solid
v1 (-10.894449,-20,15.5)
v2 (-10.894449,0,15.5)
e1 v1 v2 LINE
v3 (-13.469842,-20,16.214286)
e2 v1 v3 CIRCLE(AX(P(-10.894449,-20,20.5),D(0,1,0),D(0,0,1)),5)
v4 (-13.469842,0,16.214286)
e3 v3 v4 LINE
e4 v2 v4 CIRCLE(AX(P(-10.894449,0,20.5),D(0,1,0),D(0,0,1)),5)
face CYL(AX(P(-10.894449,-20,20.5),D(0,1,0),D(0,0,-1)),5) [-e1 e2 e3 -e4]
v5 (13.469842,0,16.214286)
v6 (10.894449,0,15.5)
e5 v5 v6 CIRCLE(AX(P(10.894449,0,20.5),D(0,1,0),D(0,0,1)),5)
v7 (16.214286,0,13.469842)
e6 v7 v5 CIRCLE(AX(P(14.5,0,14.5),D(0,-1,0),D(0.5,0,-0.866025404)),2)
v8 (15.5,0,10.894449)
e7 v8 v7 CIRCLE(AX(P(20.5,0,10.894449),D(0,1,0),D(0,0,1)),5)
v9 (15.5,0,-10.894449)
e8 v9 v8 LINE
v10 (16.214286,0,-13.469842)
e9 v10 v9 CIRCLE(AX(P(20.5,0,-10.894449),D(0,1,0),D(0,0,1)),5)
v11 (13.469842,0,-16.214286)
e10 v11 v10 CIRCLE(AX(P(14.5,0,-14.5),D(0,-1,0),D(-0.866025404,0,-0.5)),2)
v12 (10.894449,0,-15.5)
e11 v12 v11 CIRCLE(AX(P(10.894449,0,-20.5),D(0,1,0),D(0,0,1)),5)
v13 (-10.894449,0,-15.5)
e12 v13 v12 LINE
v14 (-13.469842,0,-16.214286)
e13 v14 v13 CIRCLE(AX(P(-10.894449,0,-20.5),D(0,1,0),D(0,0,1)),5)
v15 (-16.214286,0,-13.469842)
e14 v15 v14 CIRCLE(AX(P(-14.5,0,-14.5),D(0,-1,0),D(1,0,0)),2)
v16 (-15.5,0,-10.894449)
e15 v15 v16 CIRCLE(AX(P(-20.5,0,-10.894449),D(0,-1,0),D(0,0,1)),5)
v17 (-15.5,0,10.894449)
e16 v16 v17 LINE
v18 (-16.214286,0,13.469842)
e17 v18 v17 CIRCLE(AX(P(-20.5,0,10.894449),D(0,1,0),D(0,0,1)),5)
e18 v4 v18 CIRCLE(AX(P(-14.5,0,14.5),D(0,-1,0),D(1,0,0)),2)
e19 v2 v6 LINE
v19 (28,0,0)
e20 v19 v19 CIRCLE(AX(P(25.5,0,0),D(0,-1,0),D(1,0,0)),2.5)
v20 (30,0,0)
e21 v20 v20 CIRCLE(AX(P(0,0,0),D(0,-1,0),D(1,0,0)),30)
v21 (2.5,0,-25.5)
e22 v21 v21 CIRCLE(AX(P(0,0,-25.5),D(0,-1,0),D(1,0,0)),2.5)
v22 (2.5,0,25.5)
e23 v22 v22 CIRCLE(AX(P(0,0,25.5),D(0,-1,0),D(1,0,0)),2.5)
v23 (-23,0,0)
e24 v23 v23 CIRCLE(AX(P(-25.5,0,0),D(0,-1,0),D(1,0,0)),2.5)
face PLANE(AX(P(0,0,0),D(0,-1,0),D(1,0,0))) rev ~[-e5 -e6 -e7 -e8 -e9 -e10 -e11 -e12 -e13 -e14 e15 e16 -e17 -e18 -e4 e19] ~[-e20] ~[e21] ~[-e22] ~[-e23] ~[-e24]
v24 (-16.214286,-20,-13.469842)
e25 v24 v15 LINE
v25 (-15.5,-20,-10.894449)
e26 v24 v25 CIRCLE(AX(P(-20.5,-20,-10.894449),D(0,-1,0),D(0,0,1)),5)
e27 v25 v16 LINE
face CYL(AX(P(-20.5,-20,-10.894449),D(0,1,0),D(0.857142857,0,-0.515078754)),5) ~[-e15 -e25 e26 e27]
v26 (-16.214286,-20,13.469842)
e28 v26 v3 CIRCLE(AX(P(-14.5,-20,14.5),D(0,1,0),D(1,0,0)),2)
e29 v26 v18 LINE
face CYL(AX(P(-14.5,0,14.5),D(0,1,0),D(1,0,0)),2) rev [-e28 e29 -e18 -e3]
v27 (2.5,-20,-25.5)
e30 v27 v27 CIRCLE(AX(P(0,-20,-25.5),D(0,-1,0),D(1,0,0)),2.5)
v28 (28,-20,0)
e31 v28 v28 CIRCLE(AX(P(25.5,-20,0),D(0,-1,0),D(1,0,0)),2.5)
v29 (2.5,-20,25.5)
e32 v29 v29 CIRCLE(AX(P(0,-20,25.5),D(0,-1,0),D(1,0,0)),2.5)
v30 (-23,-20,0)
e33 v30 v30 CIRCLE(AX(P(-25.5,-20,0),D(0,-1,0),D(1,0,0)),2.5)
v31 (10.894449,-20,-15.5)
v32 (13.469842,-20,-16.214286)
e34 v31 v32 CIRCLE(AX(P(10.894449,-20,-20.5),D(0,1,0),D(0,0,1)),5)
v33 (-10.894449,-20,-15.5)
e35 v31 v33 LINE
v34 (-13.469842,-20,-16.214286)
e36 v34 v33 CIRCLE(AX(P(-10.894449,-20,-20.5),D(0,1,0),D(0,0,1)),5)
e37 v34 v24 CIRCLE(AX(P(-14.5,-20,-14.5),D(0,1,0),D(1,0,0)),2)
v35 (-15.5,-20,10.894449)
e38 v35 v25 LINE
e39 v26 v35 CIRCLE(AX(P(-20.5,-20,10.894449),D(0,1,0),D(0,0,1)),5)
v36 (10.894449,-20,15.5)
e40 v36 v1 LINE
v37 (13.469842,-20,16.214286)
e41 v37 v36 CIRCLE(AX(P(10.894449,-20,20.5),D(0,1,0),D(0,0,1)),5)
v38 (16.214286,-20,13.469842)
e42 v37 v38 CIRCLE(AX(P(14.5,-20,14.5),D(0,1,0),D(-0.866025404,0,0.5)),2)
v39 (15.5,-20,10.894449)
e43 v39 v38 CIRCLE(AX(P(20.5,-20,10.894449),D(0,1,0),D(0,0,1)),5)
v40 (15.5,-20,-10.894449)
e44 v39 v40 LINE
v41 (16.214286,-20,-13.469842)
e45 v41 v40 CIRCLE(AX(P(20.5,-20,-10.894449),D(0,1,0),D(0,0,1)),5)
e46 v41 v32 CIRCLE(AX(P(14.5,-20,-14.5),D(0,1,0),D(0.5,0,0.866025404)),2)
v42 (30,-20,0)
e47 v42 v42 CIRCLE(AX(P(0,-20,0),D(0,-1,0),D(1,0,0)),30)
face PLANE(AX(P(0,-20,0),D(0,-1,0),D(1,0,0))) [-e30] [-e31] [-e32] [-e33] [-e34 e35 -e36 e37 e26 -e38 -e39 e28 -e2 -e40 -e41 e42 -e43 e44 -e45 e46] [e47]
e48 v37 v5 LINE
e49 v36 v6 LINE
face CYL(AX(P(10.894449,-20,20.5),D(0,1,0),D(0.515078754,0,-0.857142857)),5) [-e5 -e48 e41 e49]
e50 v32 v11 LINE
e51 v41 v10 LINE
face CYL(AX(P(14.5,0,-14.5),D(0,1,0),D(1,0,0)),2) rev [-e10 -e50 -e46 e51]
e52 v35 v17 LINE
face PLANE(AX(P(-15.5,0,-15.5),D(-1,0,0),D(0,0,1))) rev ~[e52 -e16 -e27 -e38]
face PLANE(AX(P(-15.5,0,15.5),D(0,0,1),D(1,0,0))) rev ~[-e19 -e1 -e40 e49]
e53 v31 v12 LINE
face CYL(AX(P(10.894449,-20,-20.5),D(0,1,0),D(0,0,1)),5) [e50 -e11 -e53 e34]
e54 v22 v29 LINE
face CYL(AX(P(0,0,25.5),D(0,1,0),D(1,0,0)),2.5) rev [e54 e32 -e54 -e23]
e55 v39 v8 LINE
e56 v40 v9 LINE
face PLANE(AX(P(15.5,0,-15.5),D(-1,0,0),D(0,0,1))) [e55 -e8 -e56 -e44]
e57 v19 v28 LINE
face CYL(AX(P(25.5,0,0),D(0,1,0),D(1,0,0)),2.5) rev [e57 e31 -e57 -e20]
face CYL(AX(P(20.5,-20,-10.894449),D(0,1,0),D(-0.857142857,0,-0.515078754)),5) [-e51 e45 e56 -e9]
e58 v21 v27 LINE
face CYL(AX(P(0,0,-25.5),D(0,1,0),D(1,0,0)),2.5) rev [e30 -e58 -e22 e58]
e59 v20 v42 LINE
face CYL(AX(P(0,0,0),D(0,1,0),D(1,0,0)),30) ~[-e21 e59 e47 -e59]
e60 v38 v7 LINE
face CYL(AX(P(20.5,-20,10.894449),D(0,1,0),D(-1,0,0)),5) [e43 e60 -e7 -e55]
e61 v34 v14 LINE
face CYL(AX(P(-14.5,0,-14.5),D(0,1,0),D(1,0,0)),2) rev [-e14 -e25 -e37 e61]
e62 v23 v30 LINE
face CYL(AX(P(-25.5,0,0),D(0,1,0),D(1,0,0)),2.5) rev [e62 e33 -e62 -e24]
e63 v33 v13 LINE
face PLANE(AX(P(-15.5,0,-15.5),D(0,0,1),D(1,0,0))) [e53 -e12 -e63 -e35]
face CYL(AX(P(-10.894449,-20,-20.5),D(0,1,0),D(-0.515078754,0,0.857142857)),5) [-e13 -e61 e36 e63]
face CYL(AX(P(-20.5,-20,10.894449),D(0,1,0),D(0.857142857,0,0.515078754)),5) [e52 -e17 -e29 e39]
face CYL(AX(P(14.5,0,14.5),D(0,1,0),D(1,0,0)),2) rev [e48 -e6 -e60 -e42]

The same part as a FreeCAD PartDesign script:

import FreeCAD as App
import Part
import Sketcher
from FreeCAD import Vector
Q = App.Units.Quantity


def edges_at(feature, points):
    """Names of the edges that pass closest to the given points."""
    edges = feature.Shape.Edges
    near = lambda p: min(range(len(edges)), key=lambda i: edges[i].distToShape(Part.Vertex(*p))[0])
    return sorted({f"Edge{near(p) + 1}" for p in points})


def add_polygon(sketch, points):
    """Adds a closed chain of lines whose ends are joined by coincident constraints."""
    first, n = sketch.GeometryCount, len(points)
    for a, b in zip(points, points[1:] + points[:1]):
        sketch.addGeometry(Part.LineSegment(App.Vector(*a, 0), App.Vector(*b, 0)), False)
    for i in range(n):
        sketch.addConstraint(Sketcher.Constraint("Coincident", first + i, 2, first + (i + 1) % n, 1))

doc = App.newDocument("Part")
body = doc.addObject("PartDesign::Body", "Body")

sketch1 = body.newObject("Sketcher::SketchObject", "Sketch")
sketch1.AttachmentSupport = (doc.getObject("XZ_Plane"), [""])
sketch1.MapMode = "FlatFace"
sketch1.addGeometry([
    Part.Circle(Vector(0, 0, 0), Vector(0, 0, 1), 30),
    Part.Circle(Vector(0, -25.5, 0), Vector(0, 0, 1), 2.5),
    Part.Circle(Vector(-25.5, 0, 0), Vector(0, 0, 1), 2.5),
    Part.Circle(Vector(25.5, 0, 0), Vector(0, 0, 1), 2.5),
    Part.Circle(Vector(0, 25.5, 0), Vector(0, 0, 1), 2.5),
], False)
sketch1.addConstraint([
    Sketcher.Constraint("Coincident", 0, 3, -1, 1),
    Sketcher.Constraint("Equal", 1, 2),
    Sketcher.Constraint("Equal", 2, 3),
    Sketcher.Constraint("Equal", 3, 4),
    Sketcher.Constraint("Symmetric", 2, 3, 3, 3, -1, 1),
    Sketcher.Constraint("Symmetric", 1, 3, 4, 3, -1, 1),
    Sketcher.Constraint("PointOnObject", 1, 3, -2),
    Sketcher.Constraint("PointOnObject", 2, 3, -1),
    Sketcher.Constraint("Diameter", 0, Q("60 mm")),
    Sketcher.Constraint("Diameter", 1, Q("5 mm")),
    Sketcher.Constraint("DistanceX", 2, 3, 3, 3, Q("51 mm")),
    Sketcher.Constraint("DistanceY", 1, 3, 4, 3, Q("51 mm")),
])
pad1 = body.newObject("PartDesign::Pad", "Pad")
pad1.Profile = sketch1
pad1.Length = 20

sketch2 = body.newObject("Sketcher::SketchObject", "Sketch001")
sketch2.AttachmentSupport = (doc.getObject("XZ_Plane"), [""])
sketch2.MapMode = "FlatFace"
add_polygon(sketch2, [(-15.5, 15.5), (-15.5, -15.5), (15.5, -15.5), (15.5, 15.5)])
sketch2.addConstraint([
    Sketcher.Constraint("Vertical", 0),
    Sketcher.Constraint("Horizontal", 1),
    Sketcher.Constraint("Vertical", 2),
    Sketcher.Constraint("Horizontal", 3),
    Sketcher.Constraint("Symmetric", 0, 2, 2, 2, -1, 1),
    Sketcher.Constraint("Equal", 3, 0),
    Sketcher.Constraint("DistanceX", 1, 1, 1, 2, Q("31 mm")),
])
pocket1 = body.newObject("PartDesign::Pocket", "Pocket")
pocket1.Profile = sketch2
pocket1.Type = "ThroughAll"
pocket1.Reversed = True

sketch3 = body.newObject("Sketcher::SketchObject", "Sketch002")
sketch3.AttachmentSupport = (doc.getObject("XZ_Plane"), [""])
sketch3.MapMode = "FlatFace"
sketch3.addGeometry([
    Part.Circle(Vector(-14.5, 14.5, 0), Vector(0, 0, 1), 2),
    Part.Circle(Vector(14.5, 14.5, 0), Vector(0, 0, 1), 2),
    Part.Circle(Vector(14.5, -14.5, 0), Vector(0, 0, 1), 2),
    Part.Circle(Vector(-14.5, -14.5, 0), Vector(0, 0, 1), 2),
], False)
sketch3.addConstraint([
    Sketcher.Constraint("Equal", 0, 1),
    Sketcher.Constraint("Equal", 1, 2),
    Sketcher.Constraint("Equal", 2, 3),
    Sketcher.Constraint("Symmetric", 0, 3, 2, 3, -1, 1),
    Sketcher.Constraint("Symmetric", 1, 3, 3, 3, -1, 1),
    Sketcher.Constraint("Symmetric", 0, 3, 1, 3, -2),
    Sketcher.Constraint("Diameter", 0, Q("4 mm")),
    Sketcher.Constraint("DistanceX", 0, 3, 1, 3, Q("29 mm")),
    Sketcher.Constraint("DistanceY", 2, 3, 1, 3, Q("29 mm")),
])
pocket2 = body.newObject("PartDesign::Pocket", "Pocket001")
pocket2.Profile = sketch3
pocket2.Type = "ThroughAll"
pocket2.Reversed = True
doc.recompute()

fillet = body.newObject("PartDesign::Fillet", "Fillet")
fillet.Base = (pocket2, edges_at(pocket2, [
    (-12.768, -10, 15.5),
    (-15.5, -10, 12.768),
    (-15.5, -10, -12.768),
    (-12.768, -10, -15.5),
    (12.768, -10, -15.5),
    (15.5, -10, -12.768),
    (15.5, -10, 12.768),
    (12.768, -10, 15.5),
]))
fillet.Radius = 5

doc.recompute()
